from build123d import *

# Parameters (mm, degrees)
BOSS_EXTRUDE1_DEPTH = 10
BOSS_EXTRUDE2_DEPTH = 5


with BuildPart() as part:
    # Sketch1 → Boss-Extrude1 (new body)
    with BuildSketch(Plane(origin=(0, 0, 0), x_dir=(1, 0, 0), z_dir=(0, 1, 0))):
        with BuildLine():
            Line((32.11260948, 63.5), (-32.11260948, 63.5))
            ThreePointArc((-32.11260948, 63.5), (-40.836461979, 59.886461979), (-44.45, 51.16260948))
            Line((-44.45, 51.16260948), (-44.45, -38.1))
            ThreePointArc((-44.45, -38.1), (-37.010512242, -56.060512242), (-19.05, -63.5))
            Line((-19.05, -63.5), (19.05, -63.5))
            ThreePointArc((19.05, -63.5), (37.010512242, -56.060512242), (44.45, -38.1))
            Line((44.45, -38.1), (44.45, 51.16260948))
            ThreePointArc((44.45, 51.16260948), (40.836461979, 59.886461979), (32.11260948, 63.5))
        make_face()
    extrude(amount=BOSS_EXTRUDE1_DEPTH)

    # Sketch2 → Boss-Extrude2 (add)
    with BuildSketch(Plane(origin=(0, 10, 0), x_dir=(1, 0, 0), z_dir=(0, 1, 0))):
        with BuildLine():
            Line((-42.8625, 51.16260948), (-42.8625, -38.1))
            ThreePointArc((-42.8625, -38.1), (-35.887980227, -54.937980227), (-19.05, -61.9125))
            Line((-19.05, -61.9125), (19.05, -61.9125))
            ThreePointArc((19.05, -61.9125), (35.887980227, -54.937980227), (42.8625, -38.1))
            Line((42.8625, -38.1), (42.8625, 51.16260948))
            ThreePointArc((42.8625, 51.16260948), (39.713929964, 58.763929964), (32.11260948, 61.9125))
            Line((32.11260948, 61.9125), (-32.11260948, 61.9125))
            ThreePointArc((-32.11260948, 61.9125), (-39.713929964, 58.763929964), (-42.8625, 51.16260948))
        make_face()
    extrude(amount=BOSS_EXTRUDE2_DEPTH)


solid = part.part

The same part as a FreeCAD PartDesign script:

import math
import FreeCAD as App
import Part
import Sketcher
Q = App.Units.Quantity

doc = App.newDocument("Part")
body = doc.addObject("PartDesign::Body", "Body")

sketch1 = body.newObject("Sketcher::SketchObject", "Sketch")
sketch1.AttachmentSupport = (doc.getObject("XZ_Plane"), [""])
sketch1.MapMode = "FlatFace"
sketch1.addGeometry([
    Part.LineSegment(App.Vector(32, -64, 0), App.Vector(-32, -64, 0)),
    Part.ArcOfCircle(Part.Circle(App.Vector(-32, -51, 0), App.Vector(0, 0, 1), 12), math.radians(180), math.radians(270)),
    Part.LineSegment(App.Vector(-44, -51, 0), App.Vector(-44, 38, 0)),
    Part.ArcOfCircle(Part.Circle(App.Vector(-19, 38, 0), App.Vector(0, 0, 1), 25), math.radians(90), math.radians(180)),
    Part.LineSegment(App.Vector(-19, 64, 0), App.Vector(19, 64, 0)),
    Part.ArcOfCircle(Part.Circle(App.Vector(19, 38, 0), App.Vector(0, 0, 1), 25), math.radians(0), math.radians(90)),
    Part.LineSegment(App.Vector(44, 38, 0), App.Vector(44, -51, 0)),
    Part.ArcOfCircle(Part.Circle(App.Vector(32, -51, 0), App.Vector(0, 0, 1), 12), math.radians(-90), math.radians(0)),
], False)
sketch1.addConstraint([
    Sketcher.Constraint("Tangent", 0, 2, 1, 2),
    Sketcher.Constraint("Tangent", 1, 1, 2, 1),
    Sketcher.Constraint("Tangent", 2, 2, 3, 2),
    Sketcher.Constraint("Tangent", 3, 1, 4, 1),
    Sketcher.Constraint("Tangent", 4, 2, 5, 2),
    Sketcher.Constraint("Tangent", 5, 1, 6, 1),
    Sketcher.Constraint("Tangent", 6, 2, 7, 2),
    Sketcher.Constraint("Tangent", 7, 1, 0, 1),
    Sketcher.Constraint("Horizontal", 0),
    Sketcher.Constraint("Vertical", 2),
    Sketcher.Constraint("Horizontal", 4),
    Sketcher.Constraint("Vertical", 6),
    Sketcher.Constraint("Equal", 3, 5),
    Sketcher.Constraint("Equal", 1, 7),
    Sketcher.Constraint("Radius", 3, Q("1 in")),
    Sketcher.Constraint("DistanceX", 4, 1, 4, 2, Q("1.5 in")),
    Sketcher.Constraint("DistanceY", 0, 2, 3, 3, Q("4 in")),
    Sketcher.Constraint("DistanceY", -1, 1, 3, 3, Q("1.5 in")),
    Sketcher.Constraint("DistanceX", 3, 3, -1, 1, Q("0.75 in")),
    Sketcher.Constraint("Radius", 1, Q("12.337391 mm")),
])
pad1 = body.newObject("PartDesign::Pad", "Pad")
pad1.Profile = sketch1
pad1.Length = 10
pad1.Reversed = True

sketch2 = body.newObject("Sketcher::SketchObject", "Sketch001")
sketch2.AttachmentSupport = (doc.getObject("XZ_Plane"), [""])
sketch2.MapMode = "FlatFace"
sketch2.AttachmentOffset = App.Placement(App.Vector(0, 0, -10), App.Rotation())
sketch2.addGeometry([
    Part.LineSegment(App.Vector(-43, -51, 0), App.Vector(-43, 38, 0)),
    Part.ArcOfCircle(Part.Circle(App.Vector(-19, 38, 0), App.Vector(0, 0, 1), 24), math.radians(90), math.radians(180)),
    Part.LineSegment(App.Vector(-19, 62, 0), App.Vector(19, 62, 0)),
    Part.ArcOfCircle(Part.Circle(App.Vector(19, 38, 0), App.Vector(0, 0, 1), 24), math.radians(0), math.radians(90)),
    Part.LineSegment(App.Vector(43, 38, 0), App.Vector(43, -51, 0)),
    Part.ArcOfCircle(Part.Circle(App.Vector(32, -51, 0), App.Vector(0, 0, 1), 11), math.radians(-90), math.radians(0)),
    Part.LineSegment(App.Vector(32, -62, 0), App.Vector(-32, -62, 0)),
    Part.ArcOfCircle(Part.Circle(App.Vector(-32, -51, 0), App.Vector(0, 0, 1), 11), math.radians(180), math.radians(270)),
], False)
sketch2.addConstraint([
    Sketcher.Constraint("Tangent", 0, 2, 1, 2),
    Sketcher.Constraint("Tangent", 1, 1, 2, 1),
    Sketcher.Constraint("Tangent", 2, 2, 3, 2),
    Sketcher.Constraint("Tangent", 3, 1, 4, 1),
    Sketcher.Constraint("Tangent", 4, 2, 5, 2),
    Sketcher.Constraint("Tangent", 5, 1, 6, 1),
    Sketcher.Constraint("Tangent", 6, 2, 7, 2),
    Sketcher.Constraint("Tangent", 7, 1, 0, 1),
    Sketcher.Constraint("Vertical", 0),
    Sketcher.Constraint("Horizontal", 2),
    Sketcher.Constraint("Vertical", 4),
    Sketcher.Constraint("Horizontal", 6),
    Sketcher.Constraint("Equal", 1, 3),
    Sketcher.Constraint("Equal", 5, 7),
    Sketcher.Constraint("DistanceX", 2, 1, 2, 2, Q("1.5 in")),
    Sketcher.Constraint("Radius", 1, Q("0.9375 in")),
    Sketcher.Constraint("DistanceY", -1, 1, 1, 3, Q("1.5 in")),
    Sketcher.Constraint("DistanceX", 1, 3, -1, 1, Q("0.75 in")),
    Sketcher.Constraint("DistanceY", 5, 1, -1, 1, Q("2.4375 in")),
    Sketcher.Constraint("Radius", 5, Q("10.749891 mm")),
])
pad2 = body.newObject("PartDesign::Pad", "Pad001")
pad2.Profile = sketch2
pad2.Length = 5
pad2.Reversed = True

doc.recompute()
